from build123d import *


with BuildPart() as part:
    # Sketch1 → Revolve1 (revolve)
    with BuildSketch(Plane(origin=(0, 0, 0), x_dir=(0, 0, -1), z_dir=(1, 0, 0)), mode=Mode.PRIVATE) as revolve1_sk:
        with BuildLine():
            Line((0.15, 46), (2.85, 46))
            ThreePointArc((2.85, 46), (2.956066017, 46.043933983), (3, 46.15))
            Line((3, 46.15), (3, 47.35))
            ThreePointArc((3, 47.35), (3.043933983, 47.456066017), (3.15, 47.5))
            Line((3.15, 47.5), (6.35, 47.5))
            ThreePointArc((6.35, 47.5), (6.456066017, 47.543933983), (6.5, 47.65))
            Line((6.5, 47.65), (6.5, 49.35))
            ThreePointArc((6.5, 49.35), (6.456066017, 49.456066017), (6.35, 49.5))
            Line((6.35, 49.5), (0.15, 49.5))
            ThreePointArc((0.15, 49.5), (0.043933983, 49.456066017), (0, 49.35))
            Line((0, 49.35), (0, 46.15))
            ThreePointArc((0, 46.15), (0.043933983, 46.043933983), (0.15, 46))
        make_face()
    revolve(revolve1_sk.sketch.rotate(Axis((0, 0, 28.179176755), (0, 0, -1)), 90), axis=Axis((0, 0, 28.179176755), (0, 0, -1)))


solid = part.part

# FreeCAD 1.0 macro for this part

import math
import FreeCAD as App
import Part
import Sketcher

V = App.Vector

doc = App.newDocument("Part")
body = doc.addObject("PartDesign::Body", "Body")

# Sketch on YZ plane
sketch1 = body.newObject("Sketcher::SketchObject", "Sketch")
sketch1.AttachmentSupport = (doc.getObject("YZ_Plane"), [""])
sketch1.MapMode = "FlatFace"
sketch1.addGeometry(Part.LineSegment(V(46, -0.15, 0), V(46, -2.85, 0)), False)
sketch1.addGeometry(Part.ArcOfCircle(Part.Circle(V(46.15, -2.85, 0), V(0, 0, 1), 0.15), math.radians(-180), math.radians(-90)), False)
sketch1.addGeometry(Part.LineSegment(V(46.15, -3, 0), V(47.35, -3, 0)), False)
sketch1.addGeometry(Part.ArcOfCircle(Part.Circle(V(47.35, -3.15, 0), V(0, 0, 1), 0.15), math.radians(0), math.radians(90)), False)
sketch1.addGeometry(Part.LineSegment(V(47.5, -3.15, 0), V(47.5, -6.35, 0)), False)
sketch1.addGeometry(Part.ArcOfCircle(Part.Circle(V(47.65, -6.35, 0), V(0, 0, 1), 0.15), math.radians(-180), math.radians(-90)), False)
sketch1.addGeometry(Part.LineSegment(V(47.65, -6.5, 0), V(49.35, -6.5, 0)), False)
sketch1.addGeometry(Part.ArcOfCircle(Part.Circle(V(49.35, -6.35, 0), V(0, 0, 1), 0.15), math.radians(-90), math.radians(0)), False)
sketch1.addGeometry(Part.LineSegment(V(49.5, -6.35, 0), V(49.5, -0.15, 0)), False)
sketch1.addGeometry(Part.ArcOfCircle(Part.Circle(V(49.35, -0.15, 0), V(0, 0, 1), 0.15), math.radians(0), math.radians(90)), False)
sketch1.addGeometry(Part.LineSegment(V(49.35, 0, 0), V(46.15, 0, 0)), False)
sketch1.addGeometry(Part.ArcOfCircle(Part.Circle(V(46.15, -0.15, 0), V(0, 0, 1), 0.15), math.radians(90), math.radians(180)), False)
sketch1.addConstraint(Sketcher.Constraint("Tangent", 0, 2, 1, 1))
sketch1.addConstraint(Sketcher.Constraint("Tangent", 1, 2, 2, 1))
sketch1.addConstraint(Sketcher.Constraint("Tangent", 2, 2, 3, 2))
sketch1.addConstraint(Sketcher.Constraint("Tangent", 3, 1, 4, 1))
sketch1.addConstraint(Sketcher.Constraint("Tangent", 4, 2, 5, 1))
sketch1.addConstraint(Sketcher.Constraint("Tangent", 5, 2, 6, 1))
sketch1.addConstraint(Sketcher.Constraint("Tangent", 6, 2, 7, 1))
sketch1.addConstraint(Sketcher.Constraint("Tangent", 7, 2, 8, 1))
sketch1.addConstraint(Sketcher.Constraint("Tangent", 8, 2, 9, 1))
sketch1.addConstraint(Sketcher.Constraint("Tangent", 9, 2, 10, 1))
sketch1.addConstraint(Sketcher.Constraint("Tangent", 10, 2, 11, 1))
sketch1.addConstraint(Sketcher.Constraint("Tangent", 11, 2, 0, 1))
sketch1.addConstraint(Sketcher.Constraint("Vertical", 0))
sketch1.addConstraint(Sketcher.Constraint("Horizontal", 2))
sketch1.addConstraint(Sketcher.Constraint("Vertical", 4))
sketch1.addConstraint(Sketcher.Constraint("Horizontal", 6))
sketch1.addConstraint(Sketcher.Constraint("Vertical", 8))
sketch1.addConstraint(Sketcher.Constraint("Horizontal", 10))
sketch1.addConstraint(Sketcher.Constraint("Equal", 1, 3))
sketch1.addConstraint(Sketcher.Constraint("Equal", 3, 5))
sketch1.addConstraint(Sketcher.Constraint("Equal", 5, 7))
sketch1.addConstraint(Sketcher.Constraint("Equal", 7, 9))
sketch1.addConstraint(Sketcher.Constraint("Equal", 9, 11))
sketch1.addConstraint(Sketcher.Constraint("PointOnObject", 9, 2, -1))
sketch1.addConstraint(Sketcher.Constraint("Equal", 10, 4))
sketch1.addConstraint(Sketcher.Constraint("Radius", 1, 0.15))
sketch1.addConstraint(Sketcher.Constraint("DistanceX", 2, 1, 2, 2, 1.2))
sketch1.addConstraint(Sketcher.Constraint("DistanceX", 6, 1, 6, 2, 1.7))
sketch1.addConstraint(Sketcher.Constraint("DistanceY", 0, 2, 0, 1, 2.7))
sketch1.addConstraint(Sketcher.Constraint("DistanceX", -1, 1, 0, 2, 46.0))
revolution = body.newObject("PartDesign::Revolution", "Revolution")
revolution.Profile = sketch1
revolution.ReferenceAxis = (sketch1, ["V_Axis"])
revolution.Angle = 360

doc.recompute()
